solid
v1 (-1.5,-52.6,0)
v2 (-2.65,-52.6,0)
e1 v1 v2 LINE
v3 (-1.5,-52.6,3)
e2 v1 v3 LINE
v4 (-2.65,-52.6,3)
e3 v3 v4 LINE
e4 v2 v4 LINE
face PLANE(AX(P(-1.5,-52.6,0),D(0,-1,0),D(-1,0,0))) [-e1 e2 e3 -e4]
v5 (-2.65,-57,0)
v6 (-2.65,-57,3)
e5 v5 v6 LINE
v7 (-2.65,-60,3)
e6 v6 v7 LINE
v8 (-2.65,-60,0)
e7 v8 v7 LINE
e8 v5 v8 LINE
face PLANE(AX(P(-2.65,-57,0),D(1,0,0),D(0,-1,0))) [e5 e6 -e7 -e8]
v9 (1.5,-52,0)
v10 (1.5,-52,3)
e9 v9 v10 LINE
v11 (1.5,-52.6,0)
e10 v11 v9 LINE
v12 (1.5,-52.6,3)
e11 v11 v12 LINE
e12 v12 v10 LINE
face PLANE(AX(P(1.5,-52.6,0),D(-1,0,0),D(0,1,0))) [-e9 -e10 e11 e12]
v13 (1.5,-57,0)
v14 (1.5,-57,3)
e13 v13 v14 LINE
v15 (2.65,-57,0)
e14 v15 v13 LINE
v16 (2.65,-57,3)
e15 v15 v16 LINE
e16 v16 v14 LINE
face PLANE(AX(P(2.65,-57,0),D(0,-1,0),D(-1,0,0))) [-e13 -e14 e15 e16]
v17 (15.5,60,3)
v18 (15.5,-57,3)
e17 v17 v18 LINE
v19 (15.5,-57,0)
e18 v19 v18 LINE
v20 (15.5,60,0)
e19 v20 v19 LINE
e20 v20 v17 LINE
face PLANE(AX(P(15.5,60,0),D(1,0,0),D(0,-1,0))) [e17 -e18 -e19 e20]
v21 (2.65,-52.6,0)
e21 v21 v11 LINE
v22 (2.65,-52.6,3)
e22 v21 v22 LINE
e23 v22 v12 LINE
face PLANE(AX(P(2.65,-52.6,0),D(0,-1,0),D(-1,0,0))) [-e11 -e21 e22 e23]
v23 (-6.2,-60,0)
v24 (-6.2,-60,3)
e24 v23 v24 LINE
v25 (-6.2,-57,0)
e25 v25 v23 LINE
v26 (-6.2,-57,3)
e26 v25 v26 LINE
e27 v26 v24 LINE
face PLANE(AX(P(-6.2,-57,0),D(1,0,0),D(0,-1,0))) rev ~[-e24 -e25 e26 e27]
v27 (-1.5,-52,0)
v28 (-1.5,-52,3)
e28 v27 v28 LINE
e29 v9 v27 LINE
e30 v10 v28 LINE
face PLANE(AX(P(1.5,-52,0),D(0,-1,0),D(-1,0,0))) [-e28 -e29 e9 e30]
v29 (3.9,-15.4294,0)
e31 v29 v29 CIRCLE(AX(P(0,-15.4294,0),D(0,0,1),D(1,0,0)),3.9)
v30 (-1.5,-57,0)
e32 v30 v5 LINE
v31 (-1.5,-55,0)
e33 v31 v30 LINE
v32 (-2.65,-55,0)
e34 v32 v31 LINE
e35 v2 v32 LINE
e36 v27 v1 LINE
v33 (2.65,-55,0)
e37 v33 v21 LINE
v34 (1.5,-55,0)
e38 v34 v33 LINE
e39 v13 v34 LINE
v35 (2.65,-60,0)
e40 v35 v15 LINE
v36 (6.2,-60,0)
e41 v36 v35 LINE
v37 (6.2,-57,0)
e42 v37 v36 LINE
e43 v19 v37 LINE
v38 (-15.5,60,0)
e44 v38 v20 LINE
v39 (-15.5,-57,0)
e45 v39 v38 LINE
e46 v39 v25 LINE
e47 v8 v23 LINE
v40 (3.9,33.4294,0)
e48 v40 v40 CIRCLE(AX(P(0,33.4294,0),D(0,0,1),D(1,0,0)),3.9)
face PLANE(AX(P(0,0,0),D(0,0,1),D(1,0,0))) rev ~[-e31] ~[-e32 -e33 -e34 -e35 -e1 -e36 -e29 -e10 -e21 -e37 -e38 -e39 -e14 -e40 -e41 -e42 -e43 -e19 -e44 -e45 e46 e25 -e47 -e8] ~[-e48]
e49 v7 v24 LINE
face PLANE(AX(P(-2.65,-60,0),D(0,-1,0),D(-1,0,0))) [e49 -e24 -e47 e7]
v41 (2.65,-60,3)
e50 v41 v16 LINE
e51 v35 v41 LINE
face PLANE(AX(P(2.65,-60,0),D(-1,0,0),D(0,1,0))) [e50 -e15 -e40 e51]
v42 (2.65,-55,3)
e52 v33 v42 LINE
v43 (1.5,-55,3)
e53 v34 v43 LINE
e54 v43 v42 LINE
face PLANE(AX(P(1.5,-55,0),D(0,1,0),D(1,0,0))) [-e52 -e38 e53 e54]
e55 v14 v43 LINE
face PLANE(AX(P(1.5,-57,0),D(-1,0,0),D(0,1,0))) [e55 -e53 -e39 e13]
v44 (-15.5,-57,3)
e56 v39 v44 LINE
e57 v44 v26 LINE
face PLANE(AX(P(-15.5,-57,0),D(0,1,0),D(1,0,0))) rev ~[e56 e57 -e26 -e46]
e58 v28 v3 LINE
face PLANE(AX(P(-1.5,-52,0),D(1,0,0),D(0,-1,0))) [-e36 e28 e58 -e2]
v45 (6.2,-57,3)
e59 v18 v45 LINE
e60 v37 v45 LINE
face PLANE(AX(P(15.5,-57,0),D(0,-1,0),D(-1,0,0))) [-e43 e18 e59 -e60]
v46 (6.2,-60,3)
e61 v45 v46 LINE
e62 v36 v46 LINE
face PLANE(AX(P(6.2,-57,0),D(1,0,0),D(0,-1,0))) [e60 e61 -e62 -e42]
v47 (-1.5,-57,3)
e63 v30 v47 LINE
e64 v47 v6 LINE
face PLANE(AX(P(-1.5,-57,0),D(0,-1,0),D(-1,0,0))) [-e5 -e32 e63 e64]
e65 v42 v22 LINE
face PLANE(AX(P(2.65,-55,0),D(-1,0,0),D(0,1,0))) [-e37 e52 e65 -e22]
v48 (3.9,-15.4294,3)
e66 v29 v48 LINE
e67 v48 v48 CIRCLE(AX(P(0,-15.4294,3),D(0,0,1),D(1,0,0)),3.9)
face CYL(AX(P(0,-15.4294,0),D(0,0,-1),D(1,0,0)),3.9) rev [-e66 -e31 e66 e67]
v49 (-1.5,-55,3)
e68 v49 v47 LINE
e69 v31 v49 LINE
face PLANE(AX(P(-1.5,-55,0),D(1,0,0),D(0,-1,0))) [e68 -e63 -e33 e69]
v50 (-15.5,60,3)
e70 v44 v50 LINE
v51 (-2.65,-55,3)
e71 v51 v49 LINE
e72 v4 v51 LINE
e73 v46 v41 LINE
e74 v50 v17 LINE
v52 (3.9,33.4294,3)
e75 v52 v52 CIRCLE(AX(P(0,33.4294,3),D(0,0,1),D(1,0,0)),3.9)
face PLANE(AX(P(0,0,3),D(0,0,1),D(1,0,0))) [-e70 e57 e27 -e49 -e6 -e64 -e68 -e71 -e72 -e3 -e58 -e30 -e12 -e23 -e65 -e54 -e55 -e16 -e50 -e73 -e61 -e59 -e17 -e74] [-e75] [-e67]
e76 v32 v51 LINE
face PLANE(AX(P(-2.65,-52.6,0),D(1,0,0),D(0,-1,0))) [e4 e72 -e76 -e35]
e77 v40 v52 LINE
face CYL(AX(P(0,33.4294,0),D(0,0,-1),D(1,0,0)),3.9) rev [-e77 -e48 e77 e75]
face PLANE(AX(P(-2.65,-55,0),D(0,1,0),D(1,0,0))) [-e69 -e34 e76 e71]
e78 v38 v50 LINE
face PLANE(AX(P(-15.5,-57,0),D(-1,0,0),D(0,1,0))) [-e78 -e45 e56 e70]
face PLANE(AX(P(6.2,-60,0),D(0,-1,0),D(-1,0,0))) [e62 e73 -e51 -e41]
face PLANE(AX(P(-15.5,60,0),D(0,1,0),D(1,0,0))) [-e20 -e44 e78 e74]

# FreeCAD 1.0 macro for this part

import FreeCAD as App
import Part
import Sketcher
Q = App.Units.Quantity

doc = App.newDocument("Part")
body = doc.addObject("PartDesign::Body", "Body")

# Sketch on XY plane
sketch1 = body.newObject("Sketcher::SketchObject", "Sketch")
sketch1.AttachmentSupport = (doc.getObject("XY_Plane"), [""])
sketch1.MapMode = "FlatFace"
sketch1.addGeometry([
    Part.LineSegment(App.Vector(15.5, 60, 0), App.Vector(-15.5, 60, 0)),  # 0
    Part.LineSegment(App.Vector(-15.5, 60, 0), App.Vector(-15.5, -57, 0)),  # 1
    Part.LineSegment(App.Vector(-15.5, -57, 0), App.Vector(-6.2, -57, 0)),  # 2
    Part.LineSegment(App.Vector(-6.2, -57, 0), App.Vector(-6.2, -60, 0)),  # 3
    Part.LineSegment(App.Vector(-6.2, -60, 0), App.Vector(-2.6, -60, 0)),  # 4
    Part.LineSegment(App.Vector(-2.6, -60, 0), App.Vector(-2.6, -57, 0)),  # 5
    Part.LineSegment(App.Vector(-2.6, -57, 0), App.Vector(-1.5, -57, 0)),  # 6
    Part.LineSegment(App.Vector(-1.5, -57, 0), App.Vector(-1.5, -55, 0)),  # 7
    Part.LineSegment(App.Vector(-1.5, -55, 0), App.Vector(-2.6, -55, 0)),  # 8
    Part.LineSegment(App.Vector(-2.6, -55, 0), App.Vector(-2.6, -52.6, 0)),  # 9
    Part.LineSegment(App.Vector(-2.6, -52.6, 0), App.Vector(-1.5, -52.6, 0)),  # 10
    Part.LineSegment(App.Vector(-1.5, -52.6, 0), App.Vector(-1.5, -52, 0)),  # 11
    Part.LineSegment(App.Vector(-1.5, -52, 0), App.Vector(1.5, -52, 0)),  # 12
    Part.LineSegment(App.Vector(1.5, -52, 0), App.Vector(1.5, -52.6, 0)),  # 13
    Part.LineSegment(App.Vector(1.5, -52.6, 0), App.Vector(2.6, -52.6, 0)),  # 14
    Part.LineSegment(App.Vector(2.6, -52.6, 0), App.Vector(2.6, -55, 0)),  # 15
    Part.LineSegment(App.Vector(2.6, -55, 0), App.Vector(1.5, -55, 0)),  # 16
    Part.LineSegment(App.Vector(1.5, -55, 0), App.Vector(1.5, -57, 0)),  # 17
    Part.LineSegment(App.Vector(1.5, -57, 0), App.Vector(2.6, -57, 0)),  # 18
    Part.LineSegment(App.Vector(2.6, -57, 0), App.Vector(2.6, -60, 0)),  # 19
    Part.LineSegment(App.Vector(2.6, -60, 0), App.Vector(6.2, -60, 0)),  # 20
    Part.LineSegment(App.Vector(6.2, -60, 0), App.Vector(6.2, -57, 0)),  # 21
    Part.LineSegment(App.Vector(6.2, -57, 0), App.Vector(15.5, -57, 0)),  # 22
    Part.LineSegment(App.Vector(15.5, -57, 0), App.Vector(15.5, 60, 0)),  # 23
    Part.Circle(App.Vector(0, -15.4, 0), App.Vector(0, 0, 1), 3.9),  # 24
    Part.Circle(App.Vector(0, 33.4, 0), App.Vector(0, 0, 1), 3.9),  # 25
], False)
sketch1.addConstraint([
    Sketcher.Constraint("Coincident", 0, 2, 1, 1),
    Sketcher.Constraint("Coincident", 1, 2, 2, 1),
    Sketcher.Constraint("Coincident", 2, 2, 3, 1),
    Sketcher.Constraint("Coincident", 3, 2, 4, 1),
    Sketcher.Constraint("Coincident", 4, 2, 5, 1),
    Sketcher.Constraint("Coincident", 5, 2, 6, 1),
    Sketcher.Constraint("Coincident", 6, 2, 7, 1),
    Sketcher.Constraint("Coincident", 7, 2, 8, 1),
    Sketcher.Constraint("Coincident", 8, 2, 9, 1),
    Sketcher.Constraint("Coincident", 9, 2, 10, 1),
    Sketcher.Constraint("Coincident", 10, 2, 11, 1),
    Sketcher.Constraint("Coincident", 11, 2, 12, 1),
    Sketcher.Constraint("Coincident", 12, 2, 13, 1),
    Sketcher.Constraint("Coincident", 13, 2, 14, 1),
    Sketcher.Constraint("Coincident", 14, 2, 15, 1),
    Sketcher.Constraint("Coincident", 15, 2, 16, 1),
    Sketcher.Constraint("Coincident", 16, 2, 17, 1),
    Sketcher.Constraint("Coincident", 17, 2, 18, 1),
    Sketcher.Constraint("Coincident", 18, 2, 19, 1),
    Sketcher.Constraint("Coincident", 19, 2, 20, 1),
    Sketcher.Constraint("Coincident", 20, 2, 21, 1),
    Sketcher.Constraint("Coincident", 21, 2, 22, 1),
    Sketcher.Constraint("Coincident", 22, 2, 23, 1),
    Sketcher.Constraint("Coincident", 23, 2, 0, 1),
    Sketcher.Constraint("Horizontal", 0),
    Sketcher.Constraint("Vertical", 1),
    Sketcher.Constraint("Horizontal", 2),
    Sketcher.Constraint("Vertical", 3),
    Sketcher.Constraint("Horizontal", 4),
    Sketcher.Constraint("Vertical", 5),
    Sketcher.Constraint("Horizontal", 6),
    Sketcher.Constraint("Vertical", 7),
    Sketcher.Constraint("Horizontal", 8),
    Sketcher.Constraint("Vertical", 9),
    Sketcher.Constraint("Horizontal", 10),
    Sketcher.Constraint("Vertical", 11),
    Sketcher.Constraint("Horizontal", 12),
    Sketcher.Constraint("Vertical", 13),
    Sketcher.Constraint("Horizontal", 14),
    Sketcher.Constraint("Vertical", 15),
    Sketcher.Constraint("Horizontal", 16),
    Sketcher.Constraint("Vertical", 17),
    Sketcher.Constraint("Horizontal", 18),
    Sketcher.Constraint("Vertical", 19),
    Sketcher.Constraint("Horizontal", 20),
    Sketcher.Constraint("Vertical", 21),
    Sketcher.Constraint("Horizontal", 22),
    Sketcher.Constraint("Vertical", 23),
    Sketcher.Constraint("Equal", 24, 25),
    Sketcher.Constraint("Symmetric", 10, 2, 13, 2, -2),
    Sketcher.Constraint("Symmetric", 8, 2, 15, 2, -2),
    Sketcher.Constraint("Symmetric", 6, 2, 17, 2, -2),
    Sketcher.Constraint("Symmetric", 4, 2, 19, 2, -2),
    Sketcher.Constraint("Symmetric", 2, 2, 21, 2, -2),
    Sketcher.Constraint("PointOnObject", 24, 3, -2),
    Sketcher.Constraint("PointOnObject", 25, 3, -2),
    Sketcher.Constraint("Horizontal", 2, 2, 5, 2),
    Sketcher.Constraint("Vertical", 5, 2, 8, 2),
    Sketcher.Constraint("Vertical", 7, 2, 10, 2),
    Sketcher.Constraint("Equal", 2, 22),
    Sketcher.Constraint("Equal", 12, 3),
    Sketcher.Constraint("Diameter", 24, Q("7.8 mm")),
    Sketcher.Constraint("DistanceX", 0, 2, 0, 1, Q("31 mm")),
    Sketcher.Constraint("DistanceX", 12, 1, 12, 2, Q("3 mm")),
    Sketcher.Constraint("DistanceY", 9, 1, 9, 2, Q("2.4 mm")),
    Sketcher.Constraint("DistanceY", 4, 2, 7, 2, Q("5 mm")),
    Sketcher.Constraint("DistanceY", 7, 2, 11, 2, Q("3 mm")),
    Sketcher.Constraint("DistanceY", 1, 2, 1, 1, Q("117 mm")),
    Sketcher.Constraint("DistanceX", 2, 1, 2, 2, Q("9.3 mm")),
    Sketcher.Constraint("DistanceY", -1, 1, 0, 2, Q("60 mm")),
    Sketcher.Constraint("DistanceX", 4, 1, 4, 2, Q("3.55 mm")),
    Sketcher.Constraint("DistanceY", 3, 2, 24, 3, Q("44.5706 mm")),
    Sketcher.Constraint("DistanceY", 3, 2, 25, 3, Q("93.4294 mm")),
])
pad1 = body.newObject("PartDesign::Pad", "Pad")
pad1.Profile = sketch1
pad1.Length = 3

doc.recompute()
